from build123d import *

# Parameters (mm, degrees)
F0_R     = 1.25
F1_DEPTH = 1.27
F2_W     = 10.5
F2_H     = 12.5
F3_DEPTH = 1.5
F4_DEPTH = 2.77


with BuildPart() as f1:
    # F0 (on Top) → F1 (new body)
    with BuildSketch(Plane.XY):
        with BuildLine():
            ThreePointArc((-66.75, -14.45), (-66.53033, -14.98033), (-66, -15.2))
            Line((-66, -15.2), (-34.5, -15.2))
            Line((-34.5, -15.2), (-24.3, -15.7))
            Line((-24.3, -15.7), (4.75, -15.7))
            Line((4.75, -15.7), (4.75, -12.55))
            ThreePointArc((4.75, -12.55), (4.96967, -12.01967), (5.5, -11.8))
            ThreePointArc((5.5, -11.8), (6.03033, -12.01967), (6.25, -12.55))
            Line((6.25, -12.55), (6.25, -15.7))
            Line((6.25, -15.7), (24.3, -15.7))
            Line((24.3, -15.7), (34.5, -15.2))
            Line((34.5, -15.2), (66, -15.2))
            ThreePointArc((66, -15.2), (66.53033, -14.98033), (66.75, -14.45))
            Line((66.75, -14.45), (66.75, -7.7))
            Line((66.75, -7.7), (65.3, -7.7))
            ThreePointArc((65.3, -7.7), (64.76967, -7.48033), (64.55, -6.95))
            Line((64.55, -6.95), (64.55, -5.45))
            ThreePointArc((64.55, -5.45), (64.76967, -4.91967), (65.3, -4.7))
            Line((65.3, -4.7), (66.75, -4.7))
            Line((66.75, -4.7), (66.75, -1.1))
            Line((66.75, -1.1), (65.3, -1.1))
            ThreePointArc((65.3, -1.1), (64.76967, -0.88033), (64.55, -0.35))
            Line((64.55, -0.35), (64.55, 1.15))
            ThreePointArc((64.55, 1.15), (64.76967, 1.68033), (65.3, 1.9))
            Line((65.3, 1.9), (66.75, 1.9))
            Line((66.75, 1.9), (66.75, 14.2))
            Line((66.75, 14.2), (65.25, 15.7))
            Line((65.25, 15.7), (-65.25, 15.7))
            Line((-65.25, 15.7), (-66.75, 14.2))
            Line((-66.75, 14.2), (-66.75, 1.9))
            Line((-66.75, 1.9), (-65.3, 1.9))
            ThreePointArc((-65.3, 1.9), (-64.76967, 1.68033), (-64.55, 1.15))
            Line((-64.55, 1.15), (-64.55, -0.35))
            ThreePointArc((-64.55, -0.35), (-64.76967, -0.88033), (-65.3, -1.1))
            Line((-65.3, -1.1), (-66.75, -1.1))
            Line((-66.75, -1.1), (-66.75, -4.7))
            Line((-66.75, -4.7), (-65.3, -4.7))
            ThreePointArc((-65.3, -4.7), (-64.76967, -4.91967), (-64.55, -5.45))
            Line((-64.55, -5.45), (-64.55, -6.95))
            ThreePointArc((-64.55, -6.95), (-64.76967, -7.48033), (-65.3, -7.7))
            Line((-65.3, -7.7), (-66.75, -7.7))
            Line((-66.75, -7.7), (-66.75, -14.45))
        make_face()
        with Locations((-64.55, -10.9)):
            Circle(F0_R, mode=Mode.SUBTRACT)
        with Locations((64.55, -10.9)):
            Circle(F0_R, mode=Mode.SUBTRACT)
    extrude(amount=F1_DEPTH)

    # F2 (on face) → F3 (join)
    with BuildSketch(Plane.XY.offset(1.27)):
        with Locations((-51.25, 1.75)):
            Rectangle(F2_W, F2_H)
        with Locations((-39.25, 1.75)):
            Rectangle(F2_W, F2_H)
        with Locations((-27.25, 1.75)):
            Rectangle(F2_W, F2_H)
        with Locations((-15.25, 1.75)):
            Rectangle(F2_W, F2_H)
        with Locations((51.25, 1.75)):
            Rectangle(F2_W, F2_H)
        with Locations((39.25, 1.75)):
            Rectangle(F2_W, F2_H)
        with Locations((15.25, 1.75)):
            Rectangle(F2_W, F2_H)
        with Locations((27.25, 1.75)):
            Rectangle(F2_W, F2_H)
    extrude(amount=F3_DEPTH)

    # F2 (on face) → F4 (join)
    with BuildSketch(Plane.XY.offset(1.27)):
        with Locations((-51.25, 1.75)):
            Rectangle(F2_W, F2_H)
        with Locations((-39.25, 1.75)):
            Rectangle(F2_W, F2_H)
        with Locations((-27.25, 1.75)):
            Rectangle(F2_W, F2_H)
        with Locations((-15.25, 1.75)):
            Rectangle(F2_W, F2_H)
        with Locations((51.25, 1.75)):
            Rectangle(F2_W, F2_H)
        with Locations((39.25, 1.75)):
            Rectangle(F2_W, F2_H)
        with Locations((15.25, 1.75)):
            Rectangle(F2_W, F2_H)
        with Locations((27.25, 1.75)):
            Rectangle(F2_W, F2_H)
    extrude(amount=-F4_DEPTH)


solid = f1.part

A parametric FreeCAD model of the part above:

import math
import FreeCAD as App
import Part
import Sketcher
from FreeCAD import Vector

doc = App.newDocument("Part")
body = doc.addObject("PartDesign::Body", "Body")

# Sketch on XY plane
sketch1 = body.newObject("Sketcher::SketchObject", "Sketch")
sketch1.AttachmentSupport = (doc.getObject("XY_Plane"), [""])
sketch1.MapMode = "FlatFace"
sketch1.addGeometry(Part.ArcOfCircle(Part.Circle(Vector(-66, -14.4, 0), Vector(0, 0, 1), 0.8), math.radians(-180), math.radians(-90)), False)
sketch1.addGeometry(Part.LineSegment(Vector(-66, -15.2, 0), Vector(-34.5, -15.2, 0)), False)
sketch1.addGeometry(Part.LineSegment(Vector(-34.5, -15.2, 0), Vector(-24.3, -15.7, 0)), False)
sketch1.addGeometry(Part.LineSegment(Vector(-24.3, -15.7, 0), Vector(4.8, -15.7, 0)), False)
sketch1.addGeometry(Part.LineSegment(Vector(4.8, -15.7, 0), Vector(4.8, -12.6, 0)), False)
sketch1.addGeometry(Part.ArcOfCircle(Part.Circle(Vector(5.5, -12.6, 0), Vector(0, 0, 1), 0.8), math.radians(90), math.radians(180)), False)
sketch1.addGeometry(Part.ArcOfCircle(Part.Circle(Vector(5.5, -12.6, 0), Vector(0, 0, 1), 0.8), math.radians(0), math.radians(90)), False)
sketch1.addGeometry(Part.LineSegment(Vector(6.2, -12.6, 0), Vector(6.2, -15.7, 0)), False)
sketch1.addGeometry(Part.LineSegment(Vector(6.2, -15.7, 0), Vector(24.3, -15.7, 0)), False)
sketch1.addGeometry(Part.LineSegment(Vector(24.3, -15.7, 0), Vector(34.5, -15.2, 0)), False)
sketch1.addGeometry(Part.LineSegment(Vector(34.5, -15.2, 0), Vector(66, -15.2, 0)), False)
sketch1.addGeometry(Part.ArcOfCircle(Part.Circle(Vector(66, -14.4, 0), Vector(0, 0, 1), 0.8), math.radians(-90), math.radians(0)), False)
sketch1.addGeometry(Part.LineSegment(Vector(66.8, -14.4, 0), Vector(66.8, -7.7, 0)), False)
sketch1.addGeometry(Part.LineSegment(Vector(66.8, -7.7, 0), Vector(65.3, -7.7, 0)), False)
sketch1.addGeometry(Part.ArcOfCircle(Part.Circle(Vector(65.3, -6.9, 0), Vector(0, 0, 1), 0.8), math.radians(-180), math.radians(-90)), False)
sketch1.addGeometry(Part.LineSegment(Vector(64.5, -7, 0), Vector(64.5, -5.5, 0)), False)
sketch1.addGeometry(Part.ArcOfCircle(Part.Circle(Vector(65.3, -5.5, 0), Vector(0, 0, 1), 0.8), math.radians(90), math.radians(180)), False)
sketch1.addGeometry(Part.LineSegment(Vector(65.3, -4.7, 0), Vector(66.8, -4.7, 0)), False)
sketch1.addGeometry(Part.LineSegment(Vector(66.8, -4.7, 0), Vector(66.8, -1.1, 0)), False)
sketch1.addGeometry(Part.LineSegment(Vector(66.8, -1.1, 0), Vector(65.3, -1.1, 0)), False)
sketch1.addGeometry(Part.ArcOfCircle(Part.Circle(Vector(65.3, -0.3, 0), Vector(0, 0, 1), 0.8), math.radians(-180), math.radians(-90)), False)
sketch1.addGeometry(Part.LineSegment(Vector(64.5, -0.3, 0), Vector(64.5, 1.1, 0)), False)
sketch1.addGeometry(Part.ArcOfCircle(Part.Circle(Vector(65.3, 1.1, 0), Vector(0, 0, 1), 0.8), math.radians(90), math.radians(180)), False)
sketch1.addGeometry(Part.LineSegment(Vector(65.3, 1.9, 0), Vector(66.8, 1.9, 0)), False)
sketch1.addGeometry(Part.LineSegment(Vector(66.8, 1.9, 0), Vector(66.8, 14.2, 0)), False)
sketch1.addGeometry(Part.LineSegment(Vector(66.8, 14.2, 0), Vector(65.2, 15.7, 0)), False)
sketch1.addGeometry(Part.LineSegment(Vector(65.2, 15.7, 0), Vector(-65.2, 15.7, 0)), False)
sketch1.addGeometry(Part.LineSegment(Vector(-65.2, 15.7, 0), Vector(-66.8, 14.2, 0)), False)
sketch1.addGeometry(Part.LineSegment(Vector(-66.8, 14.2, 0), Vector(-66.8, 1.9, 0)), False)
sketch1.addGeometry(Part.LineSegment(Vector(-66.8, 1.9, 0), Vector(-65.3, 1.9, 0)), False)
sketch1.addGeometry(Part.ArcOfCircle(Part.Circle(Vector(-65.3, 1.1, 0), Vector(0, 0, 1), 0.8), math.radians(0), math.radians(90)), False)
sketch1.addGeometry(Part.LineSegment(Vector(-64.5, 1.1, 0), Vector(-64.5, -0.3, 0)), False)
sketch1.addGeometry(Part.ArcOfCircle(Part.Circle(Vector(-65.3, -0.3, 0), Vector(0, 0, 1), 0.8), math.radians(-90), math.radians(0)), False)
sketch1.addGeometry(Part.LineSegment(Vector(-65.3, -1.1, 0), Vector(-66.8, -1.1, 0)), False)
sketch1.addGeometry(Part.LineSegment(Vector(-66.8, -1.1, 0), Vector(-66.8, -4.7, 0)), False)
sketch1.addGeometry(Part.LineSegment(Vector(-66.8, -4.7, 0), Vector(-65.3, -4.7, 0)), False)
sketch1.addGeometry(Part.ArcOfCircle(Part.Circle(Vector(-65.3, -5.5, 0), Vector(0, 0, 1), 0.8), math.radians(0), math.radians(90)), False)
sketch1.addGeometry(Part.LineSegment(Vector(-64.5, -5.5, 0), Vector(-64.5, -7, 0)), False)
sketch1.addGeometry(Part.ArcOfCircle(Part.Circle(Vector(-65.3, -6.9, 0), Vector(0, 0, 1), 0.8), math.radians(-90), math.radians(0)), False)
sketch1.addGeometry(Part.LineSegment(Vector(-65.3, -7.7, 0), Vector(-66.8, -7.7, 0)), False)
sketch1.addGeometry(Part.LineSegment(Vector(-66.8, -7.7, 0), Vector(-66.8, -14.4, 0)), False)
sketch1.addGeometry(Part.Circle(Vector(-64.5, -10.9, 0), Vector(0, 0, 1), 1.2), False)
sketch1.addGeometry(Part.Circle(Vector(64.5, -10.9, 0), Vector(0, 0, 1), 1.2), False)
sketch1.addConstraint(Sketcher.Constraint("Tangent", 0, 2, 1, 1))
sketch1.addConstraint(Sketcher.Constraint("Coincident", 1, 2, 2, 1))
sketch1.addConstraint(Sketcher.Constraint("Coincident", 2, 2, 3, 1))
sketch1.addConstraint(Sketcher.Constraint("Coincident", 3, 2, 4, 1))
sketch1.addConstraint(Sketcher.Constraint("Tangent", 4, 2, 5, 2))
sketch1.addConstraint(Sketcher.Constraint("Tangent", 5, 1, 6, 2))
sketch1.addConstraint(Sketcher.Constraint("Tangent", 6, 1, 7, 1))
sketch1.addConstraint(Sketcher.Constraint("Coincident", 7, 2, 8, 1))
sketch1.addConstraint(Sketcher.Constraint("Coincident", 8, 2, 9, 1))
sketch1.addConstraint(Sketcher.Constraint("Coincident", 9, 2, 10, 1))
sketch1.addConstraint(Sketcher.Constraint("Tangent", 10, 2, 11, 1))
sketch1.addConstraint(Sketcher.Constraint("Tangent", 11, 2, 12, 1))
sketch1.addConstraint(Sketcher.Constraint("Coincident", 12, 2, 13, 1))
sketch1.addConstraint(Sketcher.Constraint("Tangent", 13, 2, 14, 2))
sketch1.addConstraint(Sketcher.Constraint("Tangent", 14, 1, 15, 1))
sketch1.addConstraint(Sketcher.Constraint("Tangent", 15, 2, 16, 2))
sketch1.addConstraint(Sketcher.Constraint("Tangent", 16, 1, 17, 1))
sketch1.addConstraint(Sketcher.Constraint("Coincident", 17, 2, 18, 1))
sketch1.addConstraint(Sketcher.Constraint("Coincident", 18, 2, 19, 1))
sketch1.addConstraint(Sketcher.Constraint("Tangent", 19, 2, 20, 2))
sketch1.addConstraint(Sketcher.Constraint("Tangent", 20, 1, 21, 1))
sketch1.addConstraint(Sketcher.Constraint("Tangent", 21, 2, 22, 2))
sketch1.addConstraint(Sketcher.Constraint("Tangent", 22, 1, 23, 1))
sketch1.addConstraint(Sketcher.Constraint("Coincident", 23, 2, 24, 1))
sketch1.addConstraint(Sketcher.Constraint("Coincident", 24, 2, 25, 1))
sketch1.addConstraint(Sketcher.Constraint("Coincident", 25, 2, 26, 1))
sketch1.addConstraint(Sketcher.Constraint("Coincident", 26, 2, 27, 1))
sketch1.addConstraint(Sketcher.Constraint("Coincident", 27, 2, 28, 1))
sketch1.addConstraint(Sketcher.Constraint("Coincident", 28, 2, 29, 1))
sketch1.addConstraint(Sketcher.Constraint("Tangent", 29, 2, 30, 2))
sketch1.addConstraint(Sketcher.Constraint("Tangent", 30, 1, 31, 1))
sketch1.addConstraint(Sketcher.Constraint("Tangent", 31, 2, 32, 2))
sketch1.addConstraint(Sketcher.Constraint("Tangent", 32, 1, 33, 1))
sketch1.addConstraint(Sketcher.Constraint("Coincident", 33, 2, 34, 1))
sketch1.addConstraint(Sketcher.Constraint("Coincident", 34, 2, 35, 1))
sketch1.addConstraint(Sketcher.Constraint("Tangent", 35, 2, 36, 2))
sketch1.addConstraint(Sketcher.Constraint("Tangent", 36, 1, 37, 1))
sketch1.addConstraint(Sketcher.Constraint("Tangent", 37, 2, 38, 2))
sketch1.addConstraint(Sketcher.Constraint("Tangent", 38, 1, 39, 1))
sketch1.addConstraint(Sketcher.Constraint("Coincident", 39, 2, 40, 1))
sketch1.addConstraint(Sketcher.Constraint("Tangent", 40, 2, 0, 1))
sketch1.addConstraint(Sketcher.Constraint("Horizontal", 1))
sketch1.addConstraint(Sketcher.Constraint("Horizontal", 3))
sketch1.addConstraint(Sketcher.Constraint("Vertical", 4))
sketch1.addConstraint(Sketcher.Constraint("Vertical", 7))
sketch1.addConstraint(Sketcher.Constraint("Horizontal", 8))
sketch1.addConstraint(Sketcher.Constraint("Horizontal", 10))
sketch1.addConstraint(Sketcher.Constraint("Vertical", 12))
sketch1.addConstraint(Sketcher.Constraint("Horizontal", 13))
sketch1.addConstraint(Sketcher.Constraint("Vertical", 15))
sketch1.addConstraint(Sketcher.Constraint("Horizontal", 17))
sketch1.addConstraint(Sketcher.Constraint("Vertical", 18))
sketch1.addConstraint(Sketcher.Constraint("Horizontal", 19))
sketch1.addConstraint(Sketcher.Constraint("Vertical", 21))
sketch1.addConstraint(Sketcher.Constraint("Horizontal", 23))
sketch1.addConstraint(Sketcher.Constraint("Vertical", 24))
sketch1.addConstraint(Sketcher.Constraint("Horizontal", 26))
sketch1.addConstraint(Sketcher.Constraint("Vertical", 28))
sketch1.addConstraint(Sketcher.Constraint("Horizontal", 29))
sketch1.addConstraint(Sketcher.Constraint("Vertical", 31))
sketch1.addConstraint(Sketcher.Constraint("Horizontal", 33))
sketch1.addConstraint(Sketcher.Constraint("Vertical", 34))
sketch1.addConstraint(Sketcher.Constraint("Horizontal", 35))
sketch1.addConstraint(Sketcher.Constraint("Vertical", 37))
sketch1.addConstraint(Sketcher.Constraint("Horizontal", 39))
sketch1.addConstraint(Sketcher.Constraint("Vertical", 40))
sketch1.addConstraint(Sketcher.Constraint("Equal", 0, 5))
sketch1.addConstraint(Sketcher.Constraint("Equal", 5, 6))
sketch1.addConstraint(Sketcher.Constraint("Equal", 6, 11))
sketch1.addConstraint(Sketcher.Constraint("Equal", 11, 14))
sketch1.addConstraint(Sketcher.Constraint("Equal", 14, 16))
sketch1.addConstraint(Sketcher.Constraint("Equal", 16, 20))
sketch1.addConstraint(Sketcher.Constraint("Equal", 20, 22))
sketch1.addConstraint(Sketcher.Constraint("Equal", 22, 30))
sketch1.addConstraint(Sketcher.Constraint("Equal", 30, 32))
sketch1.addConstraint(Sketcher.Constraint("Equal", 32, 36))
sketch1.addConstraint(Sketcher.Constraint("Equal", 36, 38))
sketch1.addConstraint(Sketcher.Constraint("Equal", 41, 42))
sketch1.addConstraint(Sketcher.Constraint("Symmetric", 0, 3, 11, 3, -2))
sketch1.addConstraint(Sketcher.Constraint("Symmetric", 22, 3, 30, 3, -2))
sketch1.addConstraint(Sketcher.Constraint("Symmetric", 16, 3, 36, 3, -2))
sketch1.addConstraint(Sketcher.Constraint("Symmetric", 41, 3, 42, 3, -2))
sketch1.addConstraint(Sketcher.Constraint("Symmetric", 2, 2, 8, 2, -2))
sketch1.addConstraint(Sketcher.Constraint("Symmetric", 24, 2, 27, 2, -2))
sketch1.addConstraint(Sketcher.Constraint("Symmetric", 18, 2, 33, 2, -2))
sketch1.addConstraint(Sketcher.Constraint("Perpendicular", 25, 27))
sketch1.addConstraint(Sketcher.Constraint("Horizontal", 14, 3, 38, 3))
sketch1.addConstraint(Sketcher.Constraint("Vertical", 16, 3, 20, 3))
sketch1.addConstraint(Sketcher.Constraint("Vertical", 6, 3, 5, 1))
sketch1.addConstraint(Sketcher.Constraint("Vertical", 42, 3, 14, 1))
sketch1.addConstraint(Sketcher.Constraint("Vertical", 12, 2, 17, 2))
sketch1.addConstraint(Sketcher.Constraint("Vertical", 18, 2, 23, 2))
sketch1.addConstraint(Sketcher.Constraint("Equal", 1, 10))
sketch1.addConstraint(Sketcher.Constraint("Equal", 15, 21))
sketch1.addConstraint(Sketcher.Constraint("Equal", 25, 27))
sketch1.addConstraint(Sketcher.Constraint("Diameter", 41, 2.5))
sketch1.addConstraint(Sketcher.Constraint("Radius", 0, 0.75))
sketch1.addConstraint(Sketcher.Constraint("DistanceX", 1, 1, 1, 2, 31.5))
sketch1.addConstraint(Sketcher.Constraint("DistanceX", 26, 2, 26, 1, 130.5))
sketch1.addConstraint(Sketcher.Constraint("DistanceY", 15, 1, 15, 2, 1.5))
sketch1.addConstraint(Sketcher.Constraint("DistanceY", 18, 1, 18, 2, 3.6))
sketch1.addConstraint(Sketcher.Constraint("DistanceY", 24, 1, 24, 2, 12.3))
sketch1.addConstraint(Sketcher.Constraint("DistanceX", 0, 3, -1, 1, 66.0))
sketch1.addConstraint(Sketcher.Constraint("DistanceY", 11, 3, 16, 3, 8.999999))
sketch1.addConstraint(Sketcher.Constraint("DistanceX", 5, 3, 9, 2, 29.0))
sketch1.addConstraint(Sketcher.Constraint("DistanceX", 3, 1, 3, 2, 29.05))
sketch1.addConstraint(Sketcher.Constraint("DistanceX", 13, 2, 13, 1, 1.45))
sketch1.addConstraint(Sketcher.Constraint("DistanceY", 4, 1, 4, 2, 3.15))
sketch1.addConstraint(Sketcher.Constraint("DistanceY", 41, 3, -1, 1, 10.9))
sketch1.addConstraint(Sketcher.Constraint("DistanceY", 0, 2, -1, 1, 15.2))
sketch1.addConstraint(Sketcher.Constraint("DistanceY", 2, 2, -1, 1, 15.7))
pad1 = body.newObject("PartDesign::Pad", "Pad")
pad1.Profile = sketch1
pad1.Length = 1.27

# Sketch on XY plane
sketch2 = body.newObject("Sketcher::SketchObject", "Sketch001")
sketch2.AttachmentSupport = (doc.getObject("XY_Plane"), [""])
sketch2.MapMode = "FlatFace"
sketch2.AttachmentOffset = App.Placement(Vector(0, 0, 1.27), App.Rotation())
sketch2.addGeometry(Part.LineSegment(Vector(-56, 8, 0), Vector(-56, -4, 0)), False)
sketch2.addGeometry(Part.LineSegment(Vector(-56, -4, 0), Vector(-46, -4, 0)), False)
sketch2.addGeometry(Part.LineSegment(Vector(-46, -4, 0), Vector(-46, 8, 0)), False)
sketch2.addGeometry(Part.LineSegment(Vector(-46, 8, 0), Vector(-56, 8, 0)), False)
sketch2.addGeometry(Part.LineSegment(Vector(-44, 8, 0), Vector(-44, -4, 0)), False)
sketch2.addGeometry(Part.LineSegment(Vector(-44, -4, 0), Vector(-34, -4, 0)), False)
sketch2.addGeometry(Part.LineSegment(Vector(-34, -4, 0), Vector(-34, 8, 0)), False)
sketch2.addGeometry(Part.LineSegment(Vector(-34, 8, 0), Vector(-44, 8, 0)), False)
sketch2.addGeometry(Part.LineSegment(Vector(-32, 8, 0), Vector(-32, -4, 0)), False)
sketch2.addGeometry(Part.LineSegment(Vector(-32, -4, 0), Vector(-22, -4, 0)), False)
sketch2.addGeometry(Part.LineSegment(Vector(-22, -4, 0), Vector(-22, 8, 0)), False)
sketch2.addGeometry(Part.LineSegment(Vector(-22, 8, 0), Vector(-32, 8, 0)), False)
sketch2.addGeometry(Part.LineSegment(Vector(-20, 8, 0), Vector(-20, -4, 0)), False)
sketch2.addGeometry(Part.LineSegment(Vector(-20, -4, 0), Vector(-10, -4, 0)), False)
sketch2.addGeometry(Part.LineSegment(Vector(-10, -4, 0), Vector(-10, 8, 0)), False)
sketch2.addGeometry(Part.LineSegment(Vector(-10, 8, 0), Vector(-20, 8, 0)), False)
sketch2.addGeometry(Part.LineSegment(Vector(46, 8, 0), Vector(46, -4, 0)), False)
sketch2.addGeometry(Part.LineSegment(Vector(46, -4, 0), Vector(56, -4, 0)), False)
sketch2.addGeometry(Part.LineSegment(Vector(56, -4, 0), Vector(56, 8, 0)), False)
sketch2.addGeometry(Part.LineSegment(Vector(56, 8, 0), Vector(46, 8, 0)), False)
sketch2.addGeometry(Part.LineSegment(Vector(34, 8, 0), Vector(34, -4, 0)), False)
sketch2.addGeometry(Part.LineSegment(Vector(34, -4, 0), Vector(44, -4, 0)), False)
sketch2.addGeometry(Part.LineSegment(Vector(44, -4, 0), Vector(44, 8, 0)), False)
sketch2.addGeometry(Part.LineSegment(Vector(44, 8, 0), Vector(34, 8, 0)), False)
sketch2.addGeometry(Part.LineSegment(Vector(10, 8, 0), Vector(10, -4, 0)), False)
sketch2.addGeometry(Part.LineSegment(Vector(10, -4, 0), Vector(20, -4, 0)), False)
sketch2.addGeometry(Part.LineSegment(Vector(20, -4, 0), Vector(20, 8, 0)), False)
sketch2.addGeometry(Part.LineSegment(Vector(20, 8, 0), Vector(10, 8, 0)), False)
sketch2.addGeometry(Part.LineSegment(Vector(22, 8, 0), Vector(22, -4, 0)), False)
sketch2.addGeometry(Part.LineSegment(Vector(22, -4, 0), Vector(32, -4, 0)), False)
sketch2.addGeometry(Part.LineSegment(Vector(32, -4, 0), Vector(32, 8, 0)), False)
sketch2.addGeometry(Part.LineSegment(Vector(32, 8, 0), Vector(22, 8, 0)), False)
sketch2.addConstraint(Sketcher.Constraint("Coincident", 0, 2, 1, 1))
sketch2.addConstraint(Sketcher.Constraint("Coincident", 1, 2, 2, 1))
sketch2.addConstraint(Sketcher.Constraint("Coincident", 2, 2, 3, 1))
sketch2.addConstraint(Sketcher.Constraint("Coincident", 3, 2, 0, 1))
sketch2.addConstraint(Sketcher.Constraint("Coincident", 4, 2, 5, 1))
sketch2.addConstraint(Sketcher.Constraint("Coincident", 5, 2, 6, 1))
sketch2.addConstraint(Sketcher.Constraint("Coincident", 6, 2, 7, 1))
sketch2.addConstraint(Sketcher.Constraint("Coincident", 7, 2, 4, 1))
sketch2.addConstraint(Sketcher.Constraint("Coincident", 8, 2, 9, 1))
sketch2.addConstraint(Sketcher.Constraint("Coincident", 9, 2, 10, 1))
sketch2.addConstraint(Sketcher.Constraint("Coincident", 10, 2, 11, 1))
sketch2.addConstraint(Sketcher.Constraint("Coincident", 11, 2, 8, 1))
sketch2.addConstraint(Sketcher.Constraint("Coincident", 12, 2, 13, 1))
sketch2.addConstraint(Sketcher.Constraint("Coincident", 13, 2, 14, 1))
sketch2.addConstraint(Sketcher.Constraint("Coincident", 14, 2, 15, 1))
sketch2.addConstraint(Sketcher.Constraint("Coincident", 15, 2, 12, 1))
sketch2.addConstraint(Sketcher.Constraint("Coincident", 16, 2, 17, 1))
sketch2.addConstraint(Sketcher.Constraint("Coincident", 17, 2, 18, 1))
sketch2.addConstraint(Sketcher.Constraint("Coincident", 18, 2, 19, 1))
sketch2.addConstraint(Sketcher.Constraint("Coincident", 19, 2, 16, 1))
sketch2.addConstraint(Sketcher.Constraint("Coincident", 20, 2, 21, 1))
sketch2.addConstraint(Sketcher.Constraint("Coincident", 21, 2, 22, 1))
sketch2.addConstraint(Sketcher.Constraint("Coincident", 22, 2, 23, 1))
sketch2.addConstraint(Sketcher.Constraint("Coincident", 23, 2, 20, 1))
sketch2.addConstraint(Sketcher.Constraint("Coincident", 24, 2, 25, 1))
sketch2.addConstraint(Sketcher.Constraint("Coincident", 25, 2, 26, 1))
sketch2.addConstraint(Sketcher.Constraint("Coincident", 26, 2, 27, 1))
sketch2.addConstraint(Sketcher.Constraint("Coincident", 27, 2, 24, 1))
sketch2.addConstraint(Sketcher.Constraint("Coincident", 28, 2, 29, 1))
sketch2.addConstraint(Sketcher.Constraint("Coincident", 29, 2, 30, 1))
sketch2.addConstraint(Sketcher.Constraint("Coincident", 30, 2, 31, 1))
sketch2.addConstraint(Sketcher.Constraint("Coincident", 31, 2, 28, 1))
sketch2.addConstraint(Sketcher.Constraint("Vertical", 0))
sketch2.addConstraint(Sketcher.Constraint("Horizontal", 1))
sketch2.addConstraint(Sketcher.Constraint("Vertical", 2))
sketch2.addConstraint(Sketcher.Constraint("Horizontal", 3))
sketch2.addConstraint(Sketcher.Constraint("Vertical", 4))
sketch2.addConstraint(Sketcher.Constraint("Horizontal", 5))
sketch2.addConstraint(Sketcher.Constraint("Vertical", 6))
sketch2.addConstraint(Sketcher.Constraint("Horizontal", 7))
sketch2.addConstraint(Sketcher.Constraint("Vertical", 8))
sketch2.addConstraint(Sketcher.Constraint("Horizontal", 9))
sketch2.addConstraint(Sketcher.Constraint("Vertical", 10))
sketch2.addConstraint(Sketcher.Constraint("Horizontal", 11))
sketch2.addConstraint(Sketcher.Constraint("Vertical", 12))
sketch2.addConstraint(Sketcher.Constraint("Horizontal", 13))
sketch2.addConstraint(Sketcher.Constraint("Vertical", 14))
sketch2.addConstraint(Sketcher.Constraint("Horizontal", 15))
sketch2.addConstraint(Sketcher.Constraint("Vertical", 16))
sketch2.addConstraint(Sketcher.Constraint("Horizontal", 17))
sketch2.addConstraint(Sketcher.Constraint("Vertical", 18))
sketch2.addConstraint(Sketcher.Constraint("Horizontal", 19))
sketch2.addConstraint(Sketcher.Constraint("Vertical", 20))
sketch2.addConstraint(Sketcher.Constraint("Horizontal", 21))
sketch2.addConstraint(Sketcher.Constraint("Vertical", 22))
sketch2.addConstraint(Sketcher.Constraint("Horizontal", 23))
sketch2.addConstraint(Sketcher.Constraint("Vertical", 24))
sketch2.addConstraint(Sketcher.Constraint("Horizontal", 25))
sketch2.addConstraint(Sketcher.Constraint("Vertical", 26))
sketch2.addConstraint(Sketcher.Constraint("Horizontal", 27))
sketch2.addConstraint(Sketcher.Constraint("Vertical", 28))
sketch2.addConstraint(Sketcher.Constraint("Horizontal", 29))
sketch2.addConstraint(Sketcher.Constraint("Vertical", 30))
sketch2.addConstraint(Sketcher.Constraint("Horizontal", 31))
sketch2.addConstraint(Sketcher.Constraint("Symmetric", 1, 2, 16, 2, -2))
sketch2.addConstraint(Sketcher.Constraint("Symmetric", 3, 2, 18, 2, -2))
sketch2.addConstraint(Sketcher.Constraint("Symmetric", 5, 2, 20, 2, -2))
sketch2.addConstraint(Sketcher.Constraint("Symmetric", 7, 2, 22, 2, -2))
sketch2.addConstraint(Sketcher.Constraint("Symmetric", 13, 2, 24, 2, -2))
sketch2.addConstraint(Sketcher.Constraint("Symmetric", 15, 2, 26, 2, -2))
sketch2.addConstraint(Sketcher.Constraint("Symmetric", 9, 2, 28, 2, -2))
sketch2.addConstraint(Sketcher.Constraint("Symmetric", 11, 2, 30, 2, -2))
sketch2.addConstraint(Sketcher.Constraint("Horizontal", 1, 2, 4, 2))
sketch2.addConstraint(Sketcher.Constraint("Horizontal", 3, 2, 6, 2))
sketch2.addConstraint(Sketcher.Constraint("Horizontal", 5, 2, 8, 2))
sketch2.addConstraint(Sketcher.Constraint("Horizontal", 7, 2, 10, 2))
sketch2.addConstraint(Sketcher.Constraint("Horizontal", 9, 2, 12, 2))
sketch2.addConstraint(Sketcher.Constraint("Horizontal", 11, 2, 14, 2))
sketch2.addConstraint(Sketcher.Constraint("Equal", 3, 5))
sketch2.addConstraint(Sketcher.Constraint("Equal", 7, 9))
sketch2.addConstraint(Sketcher.Constraint("Equal", 11, 13))
sketch2.addConstraint(Sketcher.Constraint("DistanceX", 1, 1, 1, 2, 10.5))
sketch2.addConstraint(Sketcher.Constraint("DistanceY", 0, 2, 0, 1, 12.5))
sketch2.addConstraint(Sketcher.Constraint("DistanceX", 1, 2, -1, 1, 46.0))
sketch2.addConstraint(Sketcher.Constraint("DistanceY", -1, 1, 2, 2, 8.0))
sketch2.addConstraint(Sketcher.Constraint("DistanceX", 5, 2, -1, 1, 34.0))
sketch2.addConstraint(Sketcher.Constraint("DistanceX", 9, 2, -1, 1, 22.0))
sketch2.addConstraint(Sketcher.Constraint("DistanceX", 13, 2, -1, 1, 10.0))
pad2 = body.newObject("PartDesign::Pad", "Pad001")
pad2.Profile = sketch2
pad2.Length = 1.5

# Sketch on XY plane
sketch3 = body.newObject("Sketcher::SketchObject", "Sketch002")
sketch3.AttachmentSupport = (doc.getObject("XY_Plane"), [""])
sketch3.MapMode = "FlatFace"
sketch3.AttachmentOffset = App.Placement(Vector(0, 0, 1.27), App.Rotation())
sketch3.addGeometry(Part.LineSegment(Vector(-56, 8, 0), Vector(-56, -4, 0)), False)
sketch3.addGeometry(Part.LineSegment(Vector(-56, -4, 0), Vector(-46, -4, 0)), False)
sketch3.addGeometry(Part.LineSegment(Vector(-46, -4, 0), Vector(-46, 8, 0)), False)
sketch3.addGeometry(Part.LineSegment(Vector(-46, 8, 0), Vector(-56, 8, 0)), False)
sketch3.addGeometry(Part.LineSegment(Vector(-44, 8, 0), Vector(-44, -4, 0)), False)
sketch3.addGeometry(Part.LineSegment(Vector(-44, -4, 0), Vector(-34, -4, 0)), False)
sketch3.addGeometry(Part.LineSegment(Vector(-34, -4, 0), Vector(-34, 8, 0)), False)
sketch3.addGeometry(Part.LineSegment(Vector(-34, 8, 0), Vector(-44, 8, 0)), False)
sketch3.addGeometry(Part.LineSegment(Vector(-32, 8, 0), Vector(-32, -4, 0)), False)
sketch3.addGeometry(Part.LineSegment(Vector(-32, -4, 0), Vector(-22, -4, 0)), False)
sketch3.addGeometry(Part.LineSegment(Vector(-22, -4, 0), Vector(-22, 8, 0)), False)
sketch3.addGeometry(Part.LineSegment(Vector(-22, 8, 0), Vector(-32, 8, 0)), False)
sketch3.addGeometry(Part.LineSegment(Vector(-20, 8, 0), Vector(-20, -4, 0)), False)
sketch3.addGeometry(Part.LineSegment(Vector(-20, -4, 0), Vector(-10, -4, 0)), False)
sketch3.addGeometry(Part.LineSegment(Vector(-10, -4, 0), Vector(-10, 8, 0)), False)
sketch3.addGeometry(Part.LineSegment(Vector(-10, 8, 0), Vector(-20, 8, 0)), False)
sketch3.addGeometry(Part.LineSegment(Vector(46, 8, 0), Vector(46, -4, 0)), False)
sketch3.addGeometry(Part.LineSegment(Vector(46, -4, 0), Vector(56, -4, 0)), False)
sketch3.addGeometry(Part.LineSegment(Vector(56, -4, 0), Vector(56, 8, 0)), False)
sketch3.addGeometry(Part.LineSegment(Vector(56, 8, 0), Vector(46, 8, 0)), False)
sketch3.addGeometry(Part.LineSegment(Vector(34, 8, 0), Vector(34, -4, 0)), False)
sketch3.addGeometry(Part.LineSegment(Vector(34, -4, 0), Vector(44, -4, 0)), False)
sketch3.addGeometry(Part.LineSegment(Vector(44, -4, 0), Vector(44, 8, 0)), False)
sketch3.addGeometry(Part.LineSegment(Vector(44, 8, 0), Vector(34, 8, 0)), False)
sketch3.addGeometry(Part.LineSegment(Vector(10, 8, 0), Vector(10, -4, 0)), False)
sketch3.addGeometry(Part.LineSegment(Vector(10, -4, 0), Vector(20, -4, 0)), False)
sketch3.addGeometry(Part.LineSegment(Vector(20, -4, 0), Vector(20, 8, 0)), False)
sketch3.addGeometry(Part.LineSegment(Vector(20, 8, 0), Vector(10, 8, 0)), False)
sketch3.addGeometry(Part.LineSegment(Vector(22, 8, 0), Vector(22, -4, 0)), False)
sketch3.addGeometry(Part.LineSegment(Vector(22, -4, 0), Vector(32, -4, 0)), False)
sketch3.addGeometry(Part.LineSegment(Vector(32, -4, 0), Vector(32, 8, 0)), False)
sketch3.addGeometry(Part.LineSegment(Vector(32, 8, 0), Vector(22, 8, 0)), False)
sketch3.addConstraint(Sketcher.Constraint("Coincident", 0, 2, 1, 1))
sketch3.addConstraint(Sketcher.Constraint("Coincident", 1, 2, 2, 1))
sketch3.addConstraint(Sketcher.Constraint("Coincident", 2, 2, 3, 1))
sketch3.addConstraint(Sketcher.Constraint("Coincident", 3, 2, 0, 1))
sketch3.addConstraint(Sketcher.Constraint("Coincident", 4, 2, 5, 1))
sketch3.addConstraint(Sketcher.Constraint("Coincident", 5, 2, 6, 1))
sketch3.addConstraint(Sketcher.Constraint("Coincident", 6, 2, 7, 1))
sketch3.addConstraint(Sketcher.Constraint("Coincident", 7, 2, 4, 1))
sketch3.addConstraint(Sketcher.Constraint("Coincident", 8, 2, 9, 1))
sketch3.addConstraint(Sketcher.Constraint("Coincident", 9, 2, 10, 1))
sketch3.addConstraint(Sketcher.Constraint("Coincident", 10, 2, 11, 1))
sketch3.addConstraint(Sketcher.Constraint("Coincident", 11, 2, 8, 1))
sketch3.addConstraint(Sketcher.Constraint("Coincident", 12, 2, 13, 1))
sketch3.addConstraint(Sketcher.Constraint("Coincident", 13, 2, 14, 1))
sketch3.addConstraint(Sketcher.Constraint("Coincident", 14, 2, 15, 1))
sketch3.addConstraint(Sketcher.Constraint("Coincident", 15, 2, 12, 1))
sketch3.addConstraint(Sketcher.Constraint("Coincident", 16, 2, 17, 1))
sketch3.addConstraint(Sketcher.Constraint("Coincident", 17, 2, 18, 1))
sketch3.addConstraint(Sketcher.Constraint("Coincident", 18, 2, 19, 1))
sketch3.addConstraint(Sketcher.Constraint("Coincident", 19, 2, 16, 1))
sketch3.addConstraint(Sketcher.Constraint("Coincident", 20, 2, 21, 1))
sketch3.addConstraint(Sketcher.Constraint("Coincident", 21, 2, 22, 1))
sketch3.addConstraint(Sketcher.Constraint("Coincident", 22, 2, 23, 1))
sketch3.addConstraint(Sketcher.Constraint("Coincident", 23, 2, 20, 1))
sketch3.addConstraint(Sketcher.Constraint("Coincident", 24, 2, 25, 1))
sketch3.addConstraint(Sketcher.Constraint("Coincident", 25, 2, 26, 1))
sketch3.addConstraint(Sketcher.Constraint("Coincident", 26, 2, 27, 1))
sketch3.addConstraint(Sketcher.Constraint("Coincident", 27, 2, 24, 1))
sketch3.addConstraint(Sketcher.Constraint("Coincident", 28, 2, 29, 1))
sketch3.addConstraint(Sketcher.Constraint("Coincident", 29, 2, 30, 1))
sketch3.addConstraint(Sketcher.Constraint("Coincident", 30, 2, 31, 1))
sketch3.addConstraint(Sketcher.Constraint("Coincident", 31, 2, 28, 1))
sketch3.addConstraint(Sketcher.Constraint("Vertical", 0))
sketch3.addConstraint(Sketcher.Constraint("Horizontal", 1))
sketch3.addConstraint(Sketcher.Constraint("Vertical", 2))
sketch3.addConstraint(Sketcher.Constraint("Horizontal", 3))
sketch3.addConstraint(Sketcher.Constraint("Vertical", 4))
sketch3.addConstraint(Sketcher.Constraint("Horizontal", 5))
sketch3.addConstraint(Sketcher.Constraint("Vertical", 6))
sketch3.addConstraint(Sketcher.Constraint("Horizontal", 7))
sketch3.addConstraint(Sketcher.Constraint("Vertical", 8))
sketch3.addConstraint(Sketcher.Constraint("Horizontal", 9))
sketch3.addConstraint(Sketcher.Constraint("Vertical", 10))
sketch3.addConstraint(Sketcher.Constraint("Horizontal", 11))
sketch3.addConstraint(Sketcher.Constraint("Vertical", 12))
sketch3.addConstraint(Sketcher.Constraint("Horizontal", 13))
sketch3.addConstraint(Sketcher.Constraint("Vertical", 14))
sketch3.addConstraint(Sketcher.Constraint("Horizontal", 15))
sketch3.addConstraint(Sketcher.Constraint("Vertical", 16))
sketch3.addConstraint(Sketcher.Constraint("Horizontal", 17))
sketch3.addConstraint(Sketcher.Constraint("Vertical", 18))
sketch3.addConstraint(Sketcher.Constraint("Horizontal", 19))
sketch3.addConstraint(Sketcher.Constraint("Vertical", 20))
sketch3.addConstraint(Sketcher.Constraint("Horizontal", 21))
sketch3.addConstraint(Sketcher.Constraint("Vertical", 22))
sketch3.addConstraint(Sketcher.Constraint("Horizontal", 23))
sketch3.addConstraint(Sketcher.Constraint("Vertical", 24))
sketch3.addConstraint(Sketcher.Constraint("Horizontal", 25))
sketch3.addConstraint(Sketcher.Constraint("Vertical", 26))
sketch3.addConstraint(Sketcher.Constraint("Horizontal", 27))
sketch3.addConstraint(Sketcher.Constraint("Vertical", 28))
sketch3.addConstraint(Sketcher.Constraint("Horizontal", 29))
sketch3.addConstraint(Sketcher.Constraint("Vertical", 30))
sketch3.addConstraint(Sketcher.Constraint("Horizontal", 31))
sketch3.addConstraint(Sketcher.Constraint("Symmetric", 1, 2, 16, 2, -2))
sketch3.addConstraint(Sketcher.Constraint("Symmetric", 3, 2, 18, 2, -2))
sketch3.addConstraint(Sketcher.Constraint("Symmetric", 5, 2, 20, 2, -2))
sketch3.addConstraint(Sketcher.Constraint("Symmetric", 7, 2, 22, 2, -2))
sketch3.addConstraint(Sketcher.Constraint("Symmetric", 13, 2, 24, 2, -2))
sketch3.addConstraint(Sketcher.Constraint("Symmetric", 15, 2, 26, 2, -2))
sketch3.addConstraint(Sketcher.Constraint("Symmetric", 9, 2, 28, 2, -2))
sketch3.addConstraint(Sketcher.Constraint("Symmetric", 11, 2, 30, 2, -2))
sketch3.addConstraint(Sketcher.Constraint("Horizontal", 1, 2, 4, 2))
sketch3.addConstraint(Sketcher.Constraint("Horizontal", 3, 2, 6, 2))
sketch3.addConstraint(Sketcher.Constraint("Horizontal", 5, 2, 8, 2))
sketch3.addConstraint(Sketcher.Constraint("Horizontal", 7, 2, 10, 2))
sketch3.addConstraint(Sketcher.Constraint("Horizontal", 9, 2, 12, 2))
sketch3.addConstraint(Sketcher.Constraint("Horizontal", 11, 2, 14, 2))
sketch3.addConstraint(Sketcher.Constraint("Equal", 3, 5))
sketch3.addConstraint(Sketcher.Constraint("Equal", 7, 9))
sketch3.addConstraint(Sketcher.Constraint("Equal", 11, 13))
sketch3.addConstraint(Sketcher.Constraint("DistanceX", 1, 1, 1, 2, 10.5))
sketch3.addConstraint(Sketcher.Constraint("DistanceY", 0, 2, 0, 1, 12.5))
sketch3.addConstraint(Sketcher.Constraint("DistanceX", 1, 2, -1, 1, 46.0))
sketch3.addConstraint(Sketcher.Constraint("DistanceY", -1, 1, 2, 2, 8.0))
sketch3.addConstraint(Sketcher.Constraint("DistanceX", 5, 2, -1, 1, 34.0))
sketch3.addConstraint(Sketcher.Constraint("DistanceX", 9, 2, -1, 1, 22.0))
sketch3.addConstraint(Sketcher.Constraint("DistanceX", 13, 2, -1, 1, 10.0))
pad3 = body.newObject("PartDesign::Pad", "Pad002")
pad3.Profile = sketch3
pad3.Length = 2.77
pad3.Reversed = True

doc.recompute()
